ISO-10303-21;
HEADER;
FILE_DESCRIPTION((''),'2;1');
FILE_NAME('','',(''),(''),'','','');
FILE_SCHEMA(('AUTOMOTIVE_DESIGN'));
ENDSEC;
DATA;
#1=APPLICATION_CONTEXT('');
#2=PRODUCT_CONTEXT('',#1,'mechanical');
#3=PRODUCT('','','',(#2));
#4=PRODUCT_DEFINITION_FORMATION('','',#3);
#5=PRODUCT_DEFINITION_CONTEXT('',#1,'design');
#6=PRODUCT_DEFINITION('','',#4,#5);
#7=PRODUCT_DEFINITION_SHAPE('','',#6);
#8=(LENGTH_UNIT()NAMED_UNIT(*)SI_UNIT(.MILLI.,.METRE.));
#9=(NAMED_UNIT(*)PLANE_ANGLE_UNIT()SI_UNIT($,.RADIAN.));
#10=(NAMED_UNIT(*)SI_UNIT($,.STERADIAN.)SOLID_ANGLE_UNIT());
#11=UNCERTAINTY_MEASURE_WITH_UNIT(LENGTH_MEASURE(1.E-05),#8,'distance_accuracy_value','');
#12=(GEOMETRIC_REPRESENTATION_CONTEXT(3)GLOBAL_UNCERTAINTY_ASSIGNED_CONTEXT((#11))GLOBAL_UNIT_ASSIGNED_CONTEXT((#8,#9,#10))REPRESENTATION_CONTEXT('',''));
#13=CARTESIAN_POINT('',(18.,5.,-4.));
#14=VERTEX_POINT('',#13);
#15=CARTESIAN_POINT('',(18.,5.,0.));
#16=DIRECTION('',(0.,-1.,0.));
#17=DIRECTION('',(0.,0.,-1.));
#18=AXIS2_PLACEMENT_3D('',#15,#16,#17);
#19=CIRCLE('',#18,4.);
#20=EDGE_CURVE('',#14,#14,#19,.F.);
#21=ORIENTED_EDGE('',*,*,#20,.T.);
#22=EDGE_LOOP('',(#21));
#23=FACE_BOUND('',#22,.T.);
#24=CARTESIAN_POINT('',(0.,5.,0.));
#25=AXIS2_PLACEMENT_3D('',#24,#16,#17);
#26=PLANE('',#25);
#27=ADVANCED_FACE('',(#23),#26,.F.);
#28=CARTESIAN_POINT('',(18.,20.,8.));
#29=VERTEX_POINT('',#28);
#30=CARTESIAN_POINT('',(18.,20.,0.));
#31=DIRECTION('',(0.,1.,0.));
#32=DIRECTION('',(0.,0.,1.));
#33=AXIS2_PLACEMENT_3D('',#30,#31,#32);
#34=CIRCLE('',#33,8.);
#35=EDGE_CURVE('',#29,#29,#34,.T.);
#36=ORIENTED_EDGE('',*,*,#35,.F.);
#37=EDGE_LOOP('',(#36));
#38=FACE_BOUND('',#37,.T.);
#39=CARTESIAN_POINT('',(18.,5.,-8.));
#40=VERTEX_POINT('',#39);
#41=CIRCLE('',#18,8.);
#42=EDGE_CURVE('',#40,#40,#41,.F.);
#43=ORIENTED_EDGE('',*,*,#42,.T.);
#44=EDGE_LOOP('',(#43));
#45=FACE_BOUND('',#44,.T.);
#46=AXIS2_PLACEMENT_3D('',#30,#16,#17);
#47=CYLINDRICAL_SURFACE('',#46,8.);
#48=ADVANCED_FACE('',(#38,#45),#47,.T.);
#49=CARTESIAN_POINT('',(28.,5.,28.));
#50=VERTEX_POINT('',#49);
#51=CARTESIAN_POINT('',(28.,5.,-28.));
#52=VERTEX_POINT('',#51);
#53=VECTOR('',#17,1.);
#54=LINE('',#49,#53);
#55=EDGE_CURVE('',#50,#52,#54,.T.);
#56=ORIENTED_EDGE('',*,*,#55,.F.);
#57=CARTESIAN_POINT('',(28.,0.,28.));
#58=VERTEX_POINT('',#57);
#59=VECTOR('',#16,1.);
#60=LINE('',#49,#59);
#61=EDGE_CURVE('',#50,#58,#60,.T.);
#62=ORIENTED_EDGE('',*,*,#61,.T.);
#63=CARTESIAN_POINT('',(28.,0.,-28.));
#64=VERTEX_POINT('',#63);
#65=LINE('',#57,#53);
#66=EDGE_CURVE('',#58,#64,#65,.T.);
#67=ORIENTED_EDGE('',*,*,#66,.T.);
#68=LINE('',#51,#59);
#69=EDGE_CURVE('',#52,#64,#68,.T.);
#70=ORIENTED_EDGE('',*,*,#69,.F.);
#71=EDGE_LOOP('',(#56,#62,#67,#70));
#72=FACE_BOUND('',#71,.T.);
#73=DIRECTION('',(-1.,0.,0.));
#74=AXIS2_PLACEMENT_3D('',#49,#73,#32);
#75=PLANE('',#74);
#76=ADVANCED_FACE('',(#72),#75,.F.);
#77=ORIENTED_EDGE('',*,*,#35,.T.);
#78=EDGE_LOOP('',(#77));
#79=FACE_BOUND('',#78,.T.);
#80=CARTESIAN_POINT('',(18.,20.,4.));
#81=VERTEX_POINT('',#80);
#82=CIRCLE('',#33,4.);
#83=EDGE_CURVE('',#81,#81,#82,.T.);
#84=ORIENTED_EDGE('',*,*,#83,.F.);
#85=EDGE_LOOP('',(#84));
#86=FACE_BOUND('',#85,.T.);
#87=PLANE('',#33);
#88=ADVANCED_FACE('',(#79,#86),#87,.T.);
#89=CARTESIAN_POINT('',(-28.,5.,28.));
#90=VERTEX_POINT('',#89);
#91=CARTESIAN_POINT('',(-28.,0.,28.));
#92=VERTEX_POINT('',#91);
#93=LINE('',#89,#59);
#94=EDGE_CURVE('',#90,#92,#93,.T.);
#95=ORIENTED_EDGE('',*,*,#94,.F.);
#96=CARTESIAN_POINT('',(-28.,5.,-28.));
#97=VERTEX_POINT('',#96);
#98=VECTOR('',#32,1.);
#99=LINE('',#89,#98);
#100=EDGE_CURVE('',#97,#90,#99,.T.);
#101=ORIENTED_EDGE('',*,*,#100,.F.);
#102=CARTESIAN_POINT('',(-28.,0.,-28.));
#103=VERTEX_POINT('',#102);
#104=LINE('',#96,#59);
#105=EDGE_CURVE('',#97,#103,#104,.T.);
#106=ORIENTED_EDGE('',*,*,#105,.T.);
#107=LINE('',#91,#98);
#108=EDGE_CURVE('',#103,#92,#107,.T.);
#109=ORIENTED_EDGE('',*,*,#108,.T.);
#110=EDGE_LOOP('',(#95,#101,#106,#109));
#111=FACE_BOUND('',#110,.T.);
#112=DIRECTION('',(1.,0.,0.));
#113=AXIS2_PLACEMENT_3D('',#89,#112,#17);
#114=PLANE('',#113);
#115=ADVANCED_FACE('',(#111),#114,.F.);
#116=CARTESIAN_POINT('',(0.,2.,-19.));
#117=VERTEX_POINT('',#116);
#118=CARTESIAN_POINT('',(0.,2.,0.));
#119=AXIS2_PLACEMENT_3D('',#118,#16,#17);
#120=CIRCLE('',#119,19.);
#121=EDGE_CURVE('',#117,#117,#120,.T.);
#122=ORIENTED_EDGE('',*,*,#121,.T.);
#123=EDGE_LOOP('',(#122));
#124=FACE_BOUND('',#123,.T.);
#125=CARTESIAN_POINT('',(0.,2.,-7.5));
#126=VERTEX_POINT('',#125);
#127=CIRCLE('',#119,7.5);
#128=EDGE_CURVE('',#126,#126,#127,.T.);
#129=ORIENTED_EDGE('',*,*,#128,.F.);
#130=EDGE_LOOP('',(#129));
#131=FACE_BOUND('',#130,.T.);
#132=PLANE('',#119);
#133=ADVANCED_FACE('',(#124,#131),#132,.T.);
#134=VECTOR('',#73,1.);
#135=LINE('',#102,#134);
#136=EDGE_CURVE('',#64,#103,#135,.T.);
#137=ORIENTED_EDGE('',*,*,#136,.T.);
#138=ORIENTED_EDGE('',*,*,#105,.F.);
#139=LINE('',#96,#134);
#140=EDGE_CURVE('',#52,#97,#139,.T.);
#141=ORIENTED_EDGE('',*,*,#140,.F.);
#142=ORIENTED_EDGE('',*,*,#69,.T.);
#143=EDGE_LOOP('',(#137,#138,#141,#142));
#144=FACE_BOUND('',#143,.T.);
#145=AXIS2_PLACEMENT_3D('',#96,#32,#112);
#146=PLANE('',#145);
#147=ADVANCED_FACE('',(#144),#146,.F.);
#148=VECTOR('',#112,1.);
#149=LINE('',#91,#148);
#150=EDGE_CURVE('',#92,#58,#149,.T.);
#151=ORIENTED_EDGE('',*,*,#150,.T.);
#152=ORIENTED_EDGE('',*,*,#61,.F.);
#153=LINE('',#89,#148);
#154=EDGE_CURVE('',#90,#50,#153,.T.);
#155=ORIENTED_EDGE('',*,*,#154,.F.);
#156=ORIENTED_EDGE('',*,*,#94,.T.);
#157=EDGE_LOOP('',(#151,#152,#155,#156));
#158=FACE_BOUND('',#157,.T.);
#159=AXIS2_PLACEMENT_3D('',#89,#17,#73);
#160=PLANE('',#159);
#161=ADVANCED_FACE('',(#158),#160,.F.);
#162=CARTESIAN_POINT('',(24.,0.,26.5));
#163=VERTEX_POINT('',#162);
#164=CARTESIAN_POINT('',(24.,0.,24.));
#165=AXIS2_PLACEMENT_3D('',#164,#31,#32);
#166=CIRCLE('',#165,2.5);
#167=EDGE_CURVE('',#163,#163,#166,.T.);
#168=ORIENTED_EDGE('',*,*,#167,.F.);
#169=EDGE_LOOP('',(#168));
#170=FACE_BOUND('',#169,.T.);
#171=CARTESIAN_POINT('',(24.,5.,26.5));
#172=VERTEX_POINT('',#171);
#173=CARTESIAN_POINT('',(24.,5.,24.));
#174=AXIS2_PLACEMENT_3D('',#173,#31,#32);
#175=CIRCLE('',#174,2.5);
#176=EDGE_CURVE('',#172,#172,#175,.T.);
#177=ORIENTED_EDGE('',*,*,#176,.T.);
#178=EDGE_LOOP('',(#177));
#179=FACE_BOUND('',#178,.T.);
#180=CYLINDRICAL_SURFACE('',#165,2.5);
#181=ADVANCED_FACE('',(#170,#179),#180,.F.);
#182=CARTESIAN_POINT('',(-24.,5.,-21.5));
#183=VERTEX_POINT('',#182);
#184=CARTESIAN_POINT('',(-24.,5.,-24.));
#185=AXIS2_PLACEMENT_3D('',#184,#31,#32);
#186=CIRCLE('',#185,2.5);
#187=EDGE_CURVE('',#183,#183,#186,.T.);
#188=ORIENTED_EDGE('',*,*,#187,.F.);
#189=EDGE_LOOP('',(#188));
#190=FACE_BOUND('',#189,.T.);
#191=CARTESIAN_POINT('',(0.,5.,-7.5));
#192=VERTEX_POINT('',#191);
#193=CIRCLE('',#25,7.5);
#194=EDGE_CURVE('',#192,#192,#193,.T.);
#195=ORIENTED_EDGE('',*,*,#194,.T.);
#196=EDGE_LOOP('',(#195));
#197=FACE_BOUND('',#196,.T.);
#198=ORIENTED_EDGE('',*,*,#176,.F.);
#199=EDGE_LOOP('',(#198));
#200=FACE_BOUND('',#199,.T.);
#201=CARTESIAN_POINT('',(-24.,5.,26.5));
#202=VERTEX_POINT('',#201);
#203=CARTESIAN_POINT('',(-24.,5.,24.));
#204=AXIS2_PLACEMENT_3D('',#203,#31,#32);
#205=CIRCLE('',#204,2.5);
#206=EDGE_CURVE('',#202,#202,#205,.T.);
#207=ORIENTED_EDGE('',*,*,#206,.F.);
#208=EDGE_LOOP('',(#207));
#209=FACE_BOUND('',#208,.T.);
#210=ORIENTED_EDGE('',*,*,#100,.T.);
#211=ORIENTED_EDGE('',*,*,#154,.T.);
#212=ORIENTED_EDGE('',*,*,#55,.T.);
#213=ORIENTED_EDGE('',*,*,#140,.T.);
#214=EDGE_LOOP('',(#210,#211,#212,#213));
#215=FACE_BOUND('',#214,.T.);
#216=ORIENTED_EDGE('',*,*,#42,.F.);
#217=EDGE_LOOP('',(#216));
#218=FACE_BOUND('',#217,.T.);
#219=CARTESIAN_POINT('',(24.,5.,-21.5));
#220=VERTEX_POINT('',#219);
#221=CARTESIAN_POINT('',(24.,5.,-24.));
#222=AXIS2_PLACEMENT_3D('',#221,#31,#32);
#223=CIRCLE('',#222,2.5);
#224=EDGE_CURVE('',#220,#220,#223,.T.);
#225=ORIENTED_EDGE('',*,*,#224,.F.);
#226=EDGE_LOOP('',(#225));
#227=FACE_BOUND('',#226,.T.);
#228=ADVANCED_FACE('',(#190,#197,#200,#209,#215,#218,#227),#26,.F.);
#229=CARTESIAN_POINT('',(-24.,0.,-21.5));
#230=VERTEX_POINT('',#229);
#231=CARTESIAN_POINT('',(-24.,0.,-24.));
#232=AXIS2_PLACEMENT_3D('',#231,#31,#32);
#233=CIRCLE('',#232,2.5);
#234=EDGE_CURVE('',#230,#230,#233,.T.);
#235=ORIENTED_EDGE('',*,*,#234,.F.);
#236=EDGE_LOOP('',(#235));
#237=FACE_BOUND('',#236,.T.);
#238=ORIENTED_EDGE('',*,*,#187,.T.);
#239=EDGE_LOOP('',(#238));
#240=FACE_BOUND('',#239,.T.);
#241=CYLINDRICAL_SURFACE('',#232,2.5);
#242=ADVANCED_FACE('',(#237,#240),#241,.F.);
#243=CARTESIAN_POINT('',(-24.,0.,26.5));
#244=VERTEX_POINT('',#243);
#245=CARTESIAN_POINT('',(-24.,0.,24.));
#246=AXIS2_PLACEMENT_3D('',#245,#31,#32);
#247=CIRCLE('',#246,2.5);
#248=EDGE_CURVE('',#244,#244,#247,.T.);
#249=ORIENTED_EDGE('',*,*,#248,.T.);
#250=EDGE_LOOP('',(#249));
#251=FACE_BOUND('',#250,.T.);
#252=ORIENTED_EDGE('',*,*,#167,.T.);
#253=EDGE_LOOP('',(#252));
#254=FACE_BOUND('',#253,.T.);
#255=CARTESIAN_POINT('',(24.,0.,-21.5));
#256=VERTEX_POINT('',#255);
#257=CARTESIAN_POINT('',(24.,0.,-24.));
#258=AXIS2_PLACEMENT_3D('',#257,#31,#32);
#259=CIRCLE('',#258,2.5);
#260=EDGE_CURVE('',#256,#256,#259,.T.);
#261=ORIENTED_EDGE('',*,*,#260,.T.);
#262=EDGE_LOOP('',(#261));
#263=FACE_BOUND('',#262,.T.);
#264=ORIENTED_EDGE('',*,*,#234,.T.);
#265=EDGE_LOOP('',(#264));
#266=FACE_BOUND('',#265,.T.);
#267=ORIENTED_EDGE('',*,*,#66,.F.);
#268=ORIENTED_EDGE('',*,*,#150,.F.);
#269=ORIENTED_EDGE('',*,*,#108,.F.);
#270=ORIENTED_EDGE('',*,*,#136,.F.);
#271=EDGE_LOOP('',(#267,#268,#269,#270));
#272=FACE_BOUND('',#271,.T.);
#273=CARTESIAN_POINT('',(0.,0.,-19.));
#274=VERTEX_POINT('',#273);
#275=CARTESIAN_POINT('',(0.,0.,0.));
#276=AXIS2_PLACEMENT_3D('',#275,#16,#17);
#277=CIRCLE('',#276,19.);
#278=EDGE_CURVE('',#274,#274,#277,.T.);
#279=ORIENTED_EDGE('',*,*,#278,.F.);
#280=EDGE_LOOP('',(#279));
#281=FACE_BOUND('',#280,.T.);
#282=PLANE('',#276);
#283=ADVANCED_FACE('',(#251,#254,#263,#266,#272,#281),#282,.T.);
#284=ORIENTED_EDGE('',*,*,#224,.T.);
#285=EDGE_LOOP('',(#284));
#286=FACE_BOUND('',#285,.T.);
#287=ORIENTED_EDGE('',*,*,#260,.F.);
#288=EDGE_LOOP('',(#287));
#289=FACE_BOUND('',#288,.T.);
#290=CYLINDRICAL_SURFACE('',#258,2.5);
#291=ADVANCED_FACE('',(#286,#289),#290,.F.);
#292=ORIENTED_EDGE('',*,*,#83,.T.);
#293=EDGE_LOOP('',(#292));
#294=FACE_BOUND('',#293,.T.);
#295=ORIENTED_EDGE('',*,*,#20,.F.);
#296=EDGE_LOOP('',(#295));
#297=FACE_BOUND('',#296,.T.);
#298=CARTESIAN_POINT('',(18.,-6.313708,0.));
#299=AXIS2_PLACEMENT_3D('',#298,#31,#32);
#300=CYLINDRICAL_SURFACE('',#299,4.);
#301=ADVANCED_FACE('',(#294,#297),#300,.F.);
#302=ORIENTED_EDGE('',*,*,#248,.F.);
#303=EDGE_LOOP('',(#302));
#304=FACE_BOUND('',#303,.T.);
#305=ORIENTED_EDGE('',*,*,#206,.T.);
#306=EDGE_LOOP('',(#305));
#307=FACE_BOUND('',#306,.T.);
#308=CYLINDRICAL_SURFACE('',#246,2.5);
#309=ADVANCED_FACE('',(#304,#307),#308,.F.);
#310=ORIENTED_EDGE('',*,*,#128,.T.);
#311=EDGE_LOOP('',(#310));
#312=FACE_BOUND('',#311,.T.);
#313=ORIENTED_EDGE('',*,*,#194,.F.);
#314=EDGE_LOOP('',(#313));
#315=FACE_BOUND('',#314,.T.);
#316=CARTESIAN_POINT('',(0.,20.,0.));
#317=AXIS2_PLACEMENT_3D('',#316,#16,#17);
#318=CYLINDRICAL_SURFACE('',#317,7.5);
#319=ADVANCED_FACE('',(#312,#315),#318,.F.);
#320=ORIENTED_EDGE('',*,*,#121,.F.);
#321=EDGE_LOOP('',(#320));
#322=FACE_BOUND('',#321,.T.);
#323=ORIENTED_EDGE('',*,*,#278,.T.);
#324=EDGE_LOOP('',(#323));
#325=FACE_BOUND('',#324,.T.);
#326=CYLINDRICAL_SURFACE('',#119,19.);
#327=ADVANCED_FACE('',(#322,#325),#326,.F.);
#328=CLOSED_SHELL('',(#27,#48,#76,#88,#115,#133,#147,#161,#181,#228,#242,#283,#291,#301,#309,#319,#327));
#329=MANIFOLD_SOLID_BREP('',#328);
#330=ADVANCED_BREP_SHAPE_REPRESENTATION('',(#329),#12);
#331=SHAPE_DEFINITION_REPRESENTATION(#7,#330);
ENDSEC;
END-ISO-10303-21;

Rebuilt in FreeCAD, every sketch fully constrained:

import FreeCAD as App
import Part
import Sketcher
Q = App.Units.Quantity

doc = App.newDocument("Part")
params = doc.addObject("Spreadsheet::Sheet", "Params")
for row, (alias, value) in enumerate([
    ("sketch1_width", "56 mm"),
    ("pad1_length", "5 mm"),
    ("sketch2_diameter", "16 mm"),
    ("pad2_length", "15 mm"),
    ("sketch3_diameter", "38 mm"),
    ("pocket1_length", "2 mm"),
    ("sketch4_diameter", "15 mm"),
    ("sketch5_diameter", "8 mm"),
    ("pocket3_length", "15 mm"),
    ("sketch6_diameter", "5 mm"),
], start=1):
    params.set(f"A{row}", alias)
    params.set(f"B{row}", "=" + value)
    params.setAlias(f"B{row}", alias)

body = doc.addObject("PartDesign::Body", "Body")

sketch1 = body.newObject("Sketcher::SketchObject", "Sketch")
sketch1.AttachmentSupport = (doc.getObject("XZ_Plane"), [""])
sketch1.MapMode = "FlatFace"
sketch1.addGeometry(Part.LineSegment(App.Vector(-28, -28, 0), App.Vector(-28, 28, 0)), False)
sketch1.addGeometry(Part.LineSegment(App.Vector(-28, 28, 0), App.Vector(28, 28, 0)), False)
sketch1.addGeometry(Part.LineSegment(App.Vector(28, 28, 0), App.Vector(28, -28, 0)), False)
sketch1.addGeometry(Part.LineSegment(App.Vector(28, -28, 0), App.Vector(-28, -28, 0)), False)
sketch1.addConstraint(Sketcher.Constraint("Coincident", 0, 2, 1, 1))
sketch1.addConstraint(Sketcher.Constraint("Coincident", 1, 2, 2, 1))
sketch1.addConstraint(Sketcher.Constraint("Coincident", 2, 2, 3, 1))
sketch1.addConstraint(Sketcher.Constraint("Coincident", 3, 2, 0, 1))
sketch1.addConstraint(Sketcher.Constraint("Vertical", 0))
sketch1.addConstraint(Sketcher.Constraint("Horizontal", 1))
sketch1.addConstraint(Sketcher.Constraint("Vertical", 2))
sketch1.addConstraint(Sketcher.Constraint("Horizontal", 3))
sketch1.addConstraint(Sketcher.Constraint("Symmetric", 0, 2, 2, 2, -1, 1))
sketch1.addConstraint(Sketcher.Constraint("Equal", 3, 0))
sketch1.addConstraint(Sketcher.Constraint("DistanceX", 1, 1, 1, 2, Q("56 mm")))
sketch1.setExpression("Constraints[10]", "Params.sketch1_width")
pad1 = body.newObject("PartDesign::Pad", "Pad")
pad1.Profile = sketch1
pad1.setExpression("Length", "Params.pad1_length")
pad1.Reversed = True

sketch2 = body.newObject("Sketcher::SketchObject", "Sketch001")
sketch2.AttachmentSupport = (doc.getObject("XZ_Plane"), [""])
sketch2.MapMode = "FlatFace"
sketch2.AttachmentOffset = App.Placement(App.Vector(0, 0, -5), App.Rotation())
sketch2.addGeometry(Part.Circle(App.Vector(18, 0, 0), App.Vector(0, 0, 1), 8), False)
sketch2.addConstraint(Sketcher.Constraint("PointOnObject", 0, 3, -1))
sketch2.addConstraint(Sketcher.Constraint("Diameter", 0, Q("16 mm")))
sketch2.addConstraint(Sketcher.Constraint("DistanceX", -1, 1, 0, 3, Q("18 mm")))
sketch2.setExpression("Constraints[1]", "Params.sketch2_diameter")
pad2 = body.newObject("PartDesign::Pad", "Pad001")
pad2.Profile = sketch2
pad2.setExpression("Length", "Params.pad2_length")
pad2.Reversed = True

sketch3 = body.newObject("Sketcher::SketchObject", "Sketch002")
sketch3.AttachmentSupport = (doc.getObject("XZ_Plane"), [""])
sketch3.MapMode = "FlatFace"
sketch3.addGeometry(Part.Circle(App.Vector(0, 0, 0), App.Vector(0, 0, 1), 19), False)
sketch3.addConstraint(Sketcher.Constraint("Coincident", 0, 3, -1, 1))
sketch3.addConstraint(Sketcher.Constraint("Diameter", 0, Q("38 mm")))
sketch3.setExpression("Constraints[1]", "Params.sketch3_diameter")
pocket1 = body.newObject("PartDesign::Pocket", "Pocket")
pocket1.Profile = sketch3
pocket1.setExpression("Length", "Params.pocket1_length")

sketch4 = body.newObject("Sketcher::SketchObject", "Sketch003")
sketch4.AttachmentSupport = (doc.getObject("XZ_Plane"), [""])
sketch4.MapMode = "FlatFace"
sketch4.AttachmentOffset = App.Placement(App.Vector(0, 0, -2), App.Rotation())
sketch4.addGeometry(Part.Circle(App.Vector(0, 0, 0), App.Vector(0, 0, 1), 8), False)
sketch4.addConstraint(Sketcher.Constraint("Coincident", 0, 3, -1, 1))
sketch4.addConstraint(Sketcher.Constraint("Diameter", 0, Q("15 mm")))
sketch4.setExpression("Constraints[1]", "Params.sketch4_diameter")
pocket2 = body.newObject("PartDesign::Pocket", "Pocket001")
pocket2.Profile = sketch4
pocket2.Type = "ThroughAll"
pocket2.Midplane = True

sketch5 = body.newObject("Sketcher::SketchObject", "Sketch004")
sketch5.AttachmentSupport = (doc.getObject("XZ_Plane"), [""])
sketch5.MapMode = "FlatFace"
sketch5.AttachmentOffset = App.Placement(App.Vector(0, 0, -20), App.Rotation())
sketch5.addGeometry(Part.Circle(App.Vector(18, 0, 0), App.Vector(0, 0, 1), 4), False)
sketch5.addConstraint(Sketcher.Constraint("PointOnObject", 0, 3, -1))
sketch5.addConstraint(Sketcher.Constraint("Diameter", 0, Q("8 mm")))
sketch5.addConstraint(Sketcher.Constraint("DistanceX", -1, 1, 0, 3, Q("18 mm")))
sketch5.setExpression("Constraints[1]", "Params.sketch5_diameter")
pocket3 = body.newObject("PartDesign::Pocket", "Pocket002")
pocket3.Profile = sketch5
pocket3.setExpression("Length", "Params.pocket3_length")
pocket3.Reversed = True

sketch6 = body.newObject("Sketcher::SketchObject", "Sketch005")
sketch6.AttachmentSupport = (doc.getObject("XZ_Plane"), [""])
sketch6.MapMode = "FlatFace"
sketch6.AttachmentOffset = App.Placement(App.Vector(0, 0, -5), App.Rotation())
sketch6.addGeometry(Part.Circle(App.Vector(-24, -24, 0), App.Vector(0, 0, 1), 2.5), False)
sketch6.addGeometry(Part.Circle(App.Vector(24, -24, 0), App.Vector(0, 0, 1), 2.5), False)
sketch6.addGeometry(Part.Circle(App.Vector(24, 24, 0), App.Vector(0, 0, 1), 2.5), False)
sketch6.addGeometry(Part.Circle(App.Vector(-24, 24, 0), App.Vector(0, 0, 1), 2.5), False)
sketch6.addConstraint(Sketcher.Constraint("Equal", 0, 1))
sketch6.addConstraint(Sketcher.Constraint("Equal", 1, 2))
sketch6.addConstraint(Sketcher.Constraint("Equal", 2, 3))
sketch6.addConstraint(Sketcher.Constraint("Symmetric", 0, 3, 2, 3, -1, 1))
sketch6.addConstraint(Sketcher.Constraint("Symmetric", 1, 3, 3, 3, -1, 1))
sketch6.addConstraint(Sketcher.Constraint("Symmetric", 0, 3, 1, 3, -2))
sketch6.addConstraint(Sketcher.Constraint("Diameter", 0, Q("5 mm")))
sketch6.addConstraint(Sketcher.Constraint("DistanceX", 0, 3, -1, 1, Q("24 mm")))
sketch6.addConstraint(Sketcher.Constraint("DistanceY", 0, 3, -1, 1, Q("24 mm")))
sketch6.setExpression("Constraints[6]", "Params.sketch6_diameter")
pocket4 = body.newObject("PartDesign::Pocket", "Pocket003")
pocket4.Profile = sketch6
pocket4.Type = "ThroughAll"
pocket4.Reversed = True

doc.recompute()
